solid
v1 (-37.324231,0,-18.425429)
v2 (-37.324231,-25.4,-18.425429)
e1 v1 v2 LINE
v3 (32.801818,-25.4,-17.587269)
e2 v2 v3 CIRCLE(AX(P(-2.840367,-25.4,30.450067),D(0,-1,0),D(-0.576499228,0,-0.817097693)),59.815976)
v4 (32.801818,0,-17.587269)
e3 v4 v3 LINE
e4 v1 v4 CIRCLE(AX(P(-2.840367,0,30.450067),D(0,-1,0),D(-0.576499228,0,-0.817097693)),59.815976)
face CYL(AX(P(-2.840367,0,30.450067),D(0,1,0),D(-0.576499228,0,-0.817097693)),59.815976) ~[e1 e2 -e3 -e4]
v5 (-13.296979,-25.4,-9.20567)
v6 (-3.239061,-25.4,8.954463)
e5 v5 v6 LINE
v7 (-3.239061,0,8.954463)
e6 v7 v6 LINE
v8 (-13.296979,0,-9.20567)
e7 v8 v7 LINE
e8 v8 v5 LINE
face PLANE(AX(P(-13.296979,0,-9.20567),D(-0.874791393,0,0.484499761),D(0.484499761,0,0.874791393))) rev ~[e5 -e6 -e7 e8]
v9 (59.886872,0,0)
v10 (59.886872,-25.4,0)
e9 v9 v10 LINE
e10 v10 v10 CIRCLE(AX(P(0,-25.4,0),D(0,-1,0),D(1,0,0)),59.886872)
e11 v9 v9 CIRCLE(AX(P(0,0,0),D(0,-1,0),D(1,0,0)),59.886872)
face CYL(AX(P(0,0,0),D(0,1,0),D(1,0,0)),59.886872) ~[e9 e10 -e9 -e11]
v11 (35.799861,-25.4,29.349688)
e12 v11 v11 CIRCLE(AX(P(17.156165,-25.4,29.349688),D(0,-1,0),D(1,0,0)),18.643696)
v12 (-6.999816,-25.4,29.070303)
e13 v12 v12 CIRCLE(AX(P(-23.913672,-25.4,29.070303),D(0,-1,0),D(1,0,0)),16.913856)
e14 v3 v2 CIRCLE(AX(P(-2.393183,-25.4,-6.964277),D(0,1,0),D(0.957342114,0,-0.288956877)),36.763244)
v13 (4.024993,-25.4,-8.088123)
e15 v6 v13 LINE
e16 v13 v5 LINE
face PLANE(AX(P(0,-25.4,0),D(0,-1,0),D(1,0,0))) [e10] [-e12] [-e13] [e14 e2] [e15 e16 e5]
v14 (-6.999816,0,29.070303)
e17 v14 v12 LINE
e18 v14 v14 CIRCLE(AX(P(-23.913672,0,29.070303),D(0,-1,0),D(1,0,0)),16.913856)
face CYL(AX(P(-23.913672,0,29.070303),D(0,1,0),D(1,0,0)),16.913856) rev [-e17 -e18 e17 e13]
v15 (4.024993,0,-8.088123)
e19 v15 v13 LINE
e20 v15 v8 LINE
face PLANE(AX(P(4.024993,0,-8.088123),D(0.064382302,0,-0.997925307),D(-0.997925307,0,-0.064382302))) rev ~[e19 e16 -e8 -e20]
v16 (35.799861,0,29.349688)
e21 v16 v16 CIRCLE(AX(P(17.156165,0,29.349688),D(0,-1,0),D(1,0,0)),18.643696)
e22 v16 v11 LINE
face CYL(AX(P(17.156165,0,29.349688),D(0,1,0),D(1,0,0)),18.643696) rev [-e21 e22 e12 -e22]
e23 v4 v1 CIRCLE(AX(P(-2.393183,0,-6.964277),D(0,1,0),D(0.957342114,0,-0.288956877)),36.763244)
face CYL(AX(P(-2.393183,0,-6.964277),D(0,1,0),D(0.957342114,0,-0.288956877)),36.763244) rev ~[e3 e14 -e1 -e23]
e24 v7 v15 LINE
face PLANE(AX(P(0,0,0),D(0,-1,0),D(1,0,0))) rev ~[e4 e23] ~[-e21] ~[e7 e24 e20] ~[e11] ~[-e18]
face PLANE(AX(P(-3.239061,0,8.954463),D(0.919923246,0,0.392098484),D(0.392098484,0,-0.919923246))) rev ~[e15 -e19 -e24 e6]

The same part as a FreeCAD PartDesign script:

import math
import FreeCAD as App
import Part
import Sketcher
Q = App.Units.Quantity


def add_polygon(sketch, points):
    """Adds a closed chain of lines whose ends are joined by coincident constraints."""
    first, n = sketch.GeometryCount, len(points)
    for a, b in zip(points, points[1:] + points[:1]):
        sketch.addGeometry(Part.LineSegment(App.Vector(*a, 0), App.Vector(*b, 0)), False)
    for i in range(n):
        sketch.addConstraint(Sketcher.Constraint("Coincident", first + i, 2, first + (i + 1) % n, 1))

doc = App.newDocument("Part")
body = doc.addObject("PartDesign::Body", "Body")

# Sketch on XZ plane
sketch1 = doc.addObject("Sketcher::SketchObject", "Sketch")
body.addObject(sketch1)
sketch1.AttachmentSupport = (doc.XZ_Plane, [""])
sketch1.MapMode = "FlatFace"
sketch1.addGeometry(Part.Circle(App.Vector(0, 0, 0), App.Vector(0, 0, 1), 60), False)  # 0
add_polygon(sketch1, [(-3, 9), (4, -8), (-13, -9)])  # lines 1-3
sketch1.addGeometry(Part.ArcOfCircle(Part.Circle(App.Vector(-3, 30, 0), App.Vector(0, 0, 1), 60), math.radians(-125), math.radians(-53)), False)  # 4
sketch1.addGeometry(Part.ArcOfCircle(Part.Circle(App.Vector(-2, -7, 0), App.Vector(0, 0, 1), 37), math.radians(-162), math.radians(-17)), False)  # 5
sketch1.addGeometry(Part.Circle(App.Vector(-24, 29, 0), App.Vector(0, 0, 1), 17), False)  # 6
sketch1.addGeometry(Part.Circle(App.Vector(17, 29, 0), App.Vector(0, 0, 1), 19), False)  # 7
sketch1.addConstraint([
    Sketcher.Constraint("Coincident", 4, 1, 5, 1),
    Sketcher.Constraint("Coincident", 5, 2, 4, 2),
    Sketcher.Constraint("Coincident", 0, 3, -1, 1),
    Sketcher.Constraint("Diameter", 6, Q("33.827712 mm")),
    Sketcher.Constraint("Diameter", 7, Q("37.287392 mm")),
    Sketcher.Constraint("Diameter", 0, Q("119.773744 mm")),
    Sketcher.Constraint("DistanceY", -1, 1, 6, 3, Q("1.1445001 in")),
    Sketcher.Constraint("Radius", 4, Q("59.815976 mm")),
    Sketcher.Constraint("Radius", 5, Q("36.763244 mm")),
    Sketcher.Constraint("DistanceX", 5, 3, 5, 2, Q("35.195001 mm")),
    Sketcher.Constraint("DistanceY", 5, 2, 2, 2, Q("8.381599 mm")),
    Sketcher.Constraint("DistanceX", 6, 3, -1, 1, Q("23.913672 mm")),
    Sketcher.Constraint("DistanceY", -1, 1, 7, 3, Q("29.349688 mm")),
    Sketcher.Constraint("DistanceX", 2, 2, -1, 1, Q("13.296979 mm")),
    Sketcher.Constraint("DistanceY", 2, 2, -1, 1, Q("9.20567 mm")),
    Sketcher.Constraint("DistanceX", 3, 2, -1, 1, Q("3.239061 mm")),
    Sketcher.Constraint("DistanceX", 4, 1, -1, 1, Q("37.324231 mm")),
    Sketcher.Constraint("DistanceY", 4, 1, -1, 1, Q("18.425429 mm")),
    Sketcher.Constraint("DistanceX", 4, 3, 7, 3, Q("19.996532 mm")),
    Sketcher.Constraint("DistanceX", 4, 3, 1, 2, Q("6.86536 mm")),
    Sketcher.Constraint("DistanceY", 1, 2, 4, 3, Q("38.53819 mm")),
    Sketcher.Constraint("DistanceY", 5, 3, 3, 2, Q("15.91874 mm")),
])
pad1 = doc.addObject("PartDesign::Pad", "Pad")
body.addObject(pad1)
pad1.Profile = sketch1
pad1.Length = Q("1 in")

doc.recompute()
